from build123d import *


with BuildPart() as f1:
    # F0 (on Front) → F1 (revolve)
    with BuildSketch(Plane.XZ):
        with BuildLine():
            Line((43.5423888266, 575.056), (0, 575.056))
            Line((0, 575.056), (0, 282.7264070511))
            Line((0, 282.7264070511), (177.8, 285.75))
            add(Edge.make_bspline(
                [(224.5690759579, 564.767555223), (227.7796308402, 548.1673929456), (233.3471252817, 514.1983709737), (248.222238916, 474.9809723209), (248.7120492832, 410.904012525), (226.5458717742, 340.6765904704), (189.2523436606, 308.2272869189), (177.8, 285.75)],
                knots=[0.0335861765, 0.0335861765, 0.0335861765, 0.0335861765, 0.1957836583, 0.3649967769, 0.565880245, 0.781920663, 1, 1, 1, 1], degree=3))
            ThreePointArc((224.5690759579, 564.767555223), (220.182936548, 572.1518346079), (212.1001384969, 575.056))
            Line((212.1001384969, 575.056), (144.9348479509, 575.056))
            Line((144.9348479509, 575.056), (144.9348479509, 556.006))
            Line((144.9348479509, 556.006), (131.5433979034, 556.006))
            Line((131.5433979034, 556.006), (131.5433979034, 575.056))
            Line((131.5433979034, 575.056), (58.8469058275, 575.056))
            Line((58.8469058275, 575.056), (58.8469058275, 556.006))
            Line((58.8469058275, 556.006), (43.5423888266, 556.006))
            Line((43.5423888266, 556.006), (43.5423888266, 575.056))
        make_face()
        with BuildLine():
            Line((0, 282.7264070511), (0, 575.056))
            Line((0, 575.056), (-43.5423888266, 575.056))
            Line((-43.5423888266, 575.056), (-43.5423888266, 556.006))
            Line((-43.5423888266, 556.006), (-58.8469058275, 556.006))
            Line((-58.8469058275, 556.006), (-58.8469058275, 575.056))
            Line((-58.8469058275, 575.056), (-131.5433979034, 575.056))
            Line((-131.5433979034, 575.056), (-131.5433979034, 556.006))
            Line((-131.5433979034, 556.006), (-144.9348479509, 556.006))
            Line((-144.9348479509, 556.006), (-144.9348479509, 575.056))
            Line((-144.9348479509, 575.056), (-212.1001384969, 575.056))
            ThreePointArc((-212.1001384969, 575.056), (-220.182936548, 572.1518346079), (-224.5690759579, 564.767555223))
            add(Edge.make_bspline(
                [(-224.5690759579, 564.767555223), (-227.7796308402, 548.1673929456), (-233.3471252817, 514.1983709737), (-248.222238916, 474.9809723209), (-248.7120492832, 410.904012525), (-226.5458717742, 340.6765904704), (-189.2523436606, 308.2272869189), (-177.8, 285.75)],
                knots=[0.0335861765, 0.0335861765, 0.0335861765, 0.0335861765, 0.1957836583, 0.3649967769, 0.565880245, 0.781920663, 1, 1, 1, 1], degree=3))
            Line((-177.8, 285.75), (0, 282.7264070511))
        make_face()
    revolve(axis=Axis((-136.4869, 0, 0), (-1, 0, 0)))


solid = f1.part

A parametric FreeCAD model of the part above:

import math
import FreeCAD as App
import Part
import Sketcher

V = App.Vector
Q = App.Units.Quantity

doc = App.newDocument("Part")
params = doc.addObject("Spreadsheet::Sheet", "Params")
for row, (alias, value) in enumerate([
    ("sketch1_radius", "0.5 in"),
    ("sketch1_height", "0.75 in"),
    ("revolution_angle", "360 deg"),
], start=1):
    params.set(f"A{row}", alias)
    params.set(f"B{row}", "=" + value)
    params.setAlias(f"B{row}", alias)

body = doc.addObject("PartDesign::Body", "Body")

sketch1 = body.newObject("Sketcher::SketchObject", "Sketch")
sketch1.AttachmentSupport = (doc.getObject("XZ_Plane"), [""])
sketch1.MapMode = "FlatFace"
sketch1.addGeometry(Part.LineSegment(V(43.542389, 575.056, 0), V(-43.542389, 575.056, 0)), False)
sketch1.addGeometry(Part.LineSegment(V(-43.542389, 575.056, 0), V(-43.542389, 556.006, 0)), False)
sketch1.addGeometry(Part.LineSegment(V(-43.542389, 556.006, 0), V(-58.846906, 556.006, 0)), False)
sketch1.addGeometry(Part.LineSegment(V(-58.846906, 556.006, 0), V(-58.846906, 575.056, 0)), False)
sketch1.addGeometry(Part.LineSegment(V(-58.846906, 575.056, 0), V(-131.543398, 575.056, 0)), False)
sketch1.addGeometry(Part.LineSegment(V(-131.543398, 575.056, 0), V(-131.543398, 556.006, 0)), False)
sketch1.addGeometry(Part.LineSegment(V(-131.543398, 556.006, 0), V(-144.934848, 556.006, 0)), False)
sketch1.addGeometry(Part.LineSegment(V(-144.934848, 556.006, 0), V(-144.934848, 575.056, 0)), False)
sketch1.addGeometry(Part.LineSegment(V(-144.934848, 575.056, 0), V(-212.100138, 575.056, 0)), False)
sketch1.addGeometry(Part.ArcOfCircle(Part.Circle(V(-212.100138, 562.356, 0), V(0, 0, 1), 12.7), math.radians(90), math.radians(169.053855)), False)
sketch1.addGeometry(Part.BSplineCurve([V(-224.569076, 564.767555, 0), V(-227.779631, 548.167393, 0), V(-233.347125, 514.198371, 0), V(-248.222239, 474.980972, 0), V(-248.712049, 410.904013, 0), V(-226.545872, 340.67659, 0), V(-189.252344, 308.227287, 0), V(-177.8, 285.75, 0)], [4, 1, 1, 1, 1, 4], [0.033586177, 0.195783658, 0.364996777, 0.565880245, 0.781920663, 1], False, 3, [1, 1, 1, 1, 1, 1, 1, 1], False), False)
sketch1.addGeometry(Part.LineSegment(V(-177.8, 285.75, 0), V(0, 282.726407, 0)), False)
sketch1.addGeometry(Part.LineSegment(V(0, 282.726407, 0), V(177.8, 285.75, 0)), False)
sketch1.addGeometry(Part.BSplineCurve([V(224.569076, 564.767555, 0), V(227.779631, 548.167393, 0), V(233.347125, 514.198371, 0), V(248.222239, 474.980972, 0), V(248.712049, 410.904013, 0), V(226.545872, 340.67659, 0), V(189.252344, 308.227287, 0), V(177.8, 285.75, 0)], [4, 1, 1, 1, 1, 4], [0.033586177, 0.195783658, 0.364996777, 0.565880245, 0.781920663, 1], False, 3, [1, 1, 1, 1, 1, 1, 1, 1], False), False)
sketch1.addGeometry(Part.ArcOfCircle(Part.Circle(V(212.100138, 562.356, 0), V(0, 0, 1), 12.7), math.radians(10.946145), math.radians(90)), False)
sketch1.addGeometry(Part.LineSegment(V(212.100138, 575.056, 0), V(144.934848, 575.056, 0)), False)
sketch1.addGeometry(Part.LineSegment(V(144.934848, 575.056, 0), V(144.934848, 556.006, 0)), False)
sketch1.addGeometry(Part.LineSegment(V(144.934848, 556.006, 0), V(131.543398, 556.006, 0)), False)
sketch1.addGeometry(Part.LineSegment(V(131.543398, 556.006, 0), V(131.543398, 575.056, 0)), False)
sketch1.addGeometry(Part.LineSegment(V(131.543398, 575.056, 0), V(58.846906, 575.056, 0)), False)
sketch1.addGeometry(Part.LineSegment(V(58.846906, 575.056, 0), V(58.846906, 556.006, 0)), False)
sketch1.addGeometry(Part.LineSegment(V(58.846906, 556.006, 0), V(43.542389, 556.006, 0)), False)
sketch1.addGeometry(Part.LineSegment(V(43.542389, 556.006, 0), V(43.542389, 575.056, 0)), False)
sketch1.addConstraint(Sketcher.Constraint("Block", 10))
sketch1.addConstraint(Sketcher.Constraint("Block", 13))
sketch1.addConstraint(Sketcher.Constraint("Coincident", 0, 2, 1, 1))
sketch1.addConstraint(Sketcher.Constraint("Coincident", 1, 2, 2, 1))
sketch1.addConstraint(Sketcher.Constraint("Coincident", 2, 2, 3, 1))
sketch1.addConstraint(Sketcher.Constraint("Coincident", 3, 2, 4, 1))
sketch1.addConstraint(Sketcher.Constraint("Coincident", 4, 2, 5, 1))
sketch1.addConstraint(Sketcher.Constraint("Coincident", 5, 2, 6, 1))
sketch1.addConstraint(Sketcher.Constraint("Coincident", 6, 2, 7, 1))
sketch1.addConstraint(Sketcher.Constraint("Coincident", 7, 2, 8, 1))
sketch1.addConstraint(Sketcher.Constraint("Tangent", 8, 2, 9, 1))
sketch1.addConstraint(Sketcher.Constraint("Coincident", 9, 2, 10, 1))
sketch1.addConstraint(Sketcher.Constraint("Coincident", 10, 2, 11, 1))
sketch1.addConstraint(Sketcher.Constraint("Coincident", 11, 2, 12, 1))
sketch1.addConstraint(Sketcher.Constraint("Coincident", 12, 2, 13, 2))
sketch1.addConstraint(Sketcher.Constraint("Coincident", 13, 1, 14, 1))
sketch1.addConstraint(Sketcher.Constraint("Tangent", 14, 2, 15, 1))
sketch1.addConstraint(Sketcher.Constraint("Coincident", 15, 2, 16, 1))
sketch1.addConstraint(Sketcher.Constraint("Coincident", 16, 2, 17, 1))
sketch1.addConstraint(Sketcher.Constraint("Coincident", 17, 2, 18, 1))
sketch1.addConstraint(Sketcher.Constraint("Coincident", 18, 2, 19, 1))
sketch1.addConstraint(Sketcher.Constraint("Coincident", 19, 2, 20, 1))
sketch1.addConstraint(Sketcher.Constraint("Coincident", 20, 2, 21, 1))
sketch1.addConstraint(Sketcher.Constraint("Coincident", 21, 2, 22, 1))
sketch1.addConstraint(Sketcher.Constraint("Coincident", 22, 2, 0, 1))
sketch1.addConstraint(Sketcher.Constraint("Horizontal", 0))
sketch1.addConstraint(Sketcher.Constraint("Vertical", 1))
sketch1.addConstraint(Sketcher.Constraint("Horizontal", 2))
sketch1.addConstraint(Sketcher.Constraint("Vertical", 3))
sketch1.addConstraint(Sketcher.Constraint("Horizontal", 4))
sketch1.addConstraint(Sketcher.Constraint("Vertical", 5))
sketch1.addConstraint(Sketcher.Constraint("Horizontal", 6))
sketch1.addConstraint(Sketcher.Constraint("Vertical", 7))
sketch1.addConstraint(Sketcher.Constraint("Horizontal", 8))
sketch1.addConstraint(Sketcher.Constraint("Horizontal", 15))
sketch1.addConstraint(Sketcher.Constraint("Vertical", 16))
sketch1.addConstraint(Sketcher.Constraint("Horizontal", 17))
sketch1.addConstraint(Sketcher.Constraint("Vertical", 18))
sketch1.addConstraint(Sketcher.Constraint("Horizontal", 19))
sketch1.addConstraint(Sketcher.Constraint("Vertical", 20))
sketch1.addConstraint(Sketcher.Constraint("Horizontal", 21))
sketch1.addConstraint(Sketcher.Constraint("Vertical", 22))
sketch1.addConstraint(Sketcher.Constraint("Equal", 9, 14))
sketch1.addConstraint(Sketcher.Constraint("Symmetric", 7, 2, 15, 2, -2))
sketch1.addConstraint(Sketcher.Constraint("Symmetric", 5, 2, 17, 2, -2))
sketch1.addConstraint(Sketcher.Constraint("Symmetric", 3, 2, 19, 2, -2))
sketch1.addConstraint(Sketcher.Constraint("Symmetric", 1, 2, 21, 2, -2))
sketch1.addConstraint(Sketcher.Constraint("PointOnObject", 11, 2, -2))
sketch1.addConstraint(Sketcher.Constraint("Horizontal", 0, 2, 3, 2))
sketch1.addConstraint(Sketcher.Constraint("Horizontal", 2, 2, 5, 2))
sketch1.addConstraint(Sketcher.Constraint("Horizontal", 4, 2, 7, 2))
sketch1.addConstraint(Sketcher.Constraint("Radius", 9, Q("0.5 in")))
sketch1.addConstraint(Sketcher.Constraint("DistanceY", 1, 2, 1, 1, Q("0.75 in")))
sketch1.addConstraint(Sketcher.Constraint("DistanceY", -1, 1, 9, 3, Q("22.14 in")))
sketch1.addConstraint(Sketcher.Constraint("DistanceX", 6, 2, 6, 1, Q("13.39145 mm")))
sketch1.addConstraint(Sketcher.Constraint("DistanceX", 8, 2, 8, 1, Q("67.165291 mm")))
sketch1.addConstraint(Sketcher.Constraint("DistanceX", 0, 2, 0, 1, Q("87.084778 mm")))
sketch1.addConstraint(Sketcher.Constraint("DistanceX", 2, 2, 2, 1, Q("15.304517 mm")))
sketch1.addConstraint(Sketcher.Constraint("Distance", 11, Q("177.825707 mm")))
sketch1.setExpression("Constraints[51]", "Params.sketch1_radius")
sketch1.setExpression("Constraints[52]", "Params.sketch1_height")
revolution = body.newObject("PartDesign::Revolution", "Revolution")
revolution.Profile = sketch1
revolution.ReferenceAxis = (sketch1, ["H_Axis"])
revolution.setExpression("Angle", "Params.revolution_angle")

doc.recompute()
